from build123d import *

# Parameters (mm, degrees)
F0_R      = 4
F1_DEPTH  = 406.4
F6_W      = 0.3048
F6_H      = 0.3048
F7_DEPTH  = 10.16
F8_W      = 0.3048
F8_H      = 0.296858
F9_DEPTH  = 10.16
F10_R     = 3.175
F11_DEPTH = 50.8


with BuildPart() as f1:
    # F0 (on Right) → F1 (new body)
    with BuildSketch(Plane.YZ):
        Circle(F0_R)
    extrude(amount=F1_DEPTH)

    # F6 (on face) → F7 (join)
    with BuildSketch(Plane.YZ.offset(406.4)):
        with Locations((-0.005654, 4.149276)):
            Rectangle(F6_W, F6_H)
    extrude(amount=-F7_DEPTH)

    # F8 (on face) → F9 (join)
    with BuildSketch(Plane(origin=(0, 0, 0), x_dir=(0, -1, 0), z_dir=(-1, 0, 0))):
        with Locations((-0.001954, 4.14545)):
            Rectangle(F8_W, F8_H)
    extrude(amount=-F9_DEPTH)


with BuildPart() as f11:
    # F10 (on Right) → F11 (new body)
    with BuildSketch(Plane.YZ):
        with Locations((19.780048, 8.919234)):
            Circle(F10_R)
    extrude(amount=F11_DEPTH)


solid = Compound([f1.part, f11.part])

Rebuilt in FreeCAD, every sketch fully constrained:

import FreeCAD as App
import Part
import Sketcher

V = App.Vector
Q = App.Units.Quantity


def add_polygon(sketch, points):
    """Adds a closed chain of lines whose ends are joined by coincident constraints."""
    first, n = sketch.GeometryCount, len(points)
    for a, b in zip(points, points[1:] + points[:1]):
        sketch.addGeometry(Part.LineSegment(App.Vector(*a, 0), App.Vector(*b, 0)), False)
    for i in range(n):
        sketch.addConstraint(Sketcher.Constraint("Coincident", first + i, 2, first + (i + 1) % n, 1))

doc = App.newDocument("Part")
body = doc.addObject("PartDesign::Body", "Body")

sketch1 = body.newObject("Sketcher::SketchObject", "Sketch")
sketch1.AttachmentSupport = (doc.getObject("YZ_Plane"), [""])
sketch1.MapMode = "FlatFace"
sketch1.addGeometry(Part.Circle(V(0, 0, 0), V(0, 0, 1), 4), False)
sketch1.addConstraint([
    Sketcher.Constraint("Coincident", 0, 3, -1, 1),
    Sketcher.Constraint("Diameter", 0, 8.0),
])
pad1 = body.newObject("PartDesign::Pad", "Pad")
pad1.Profile = sketch1
pad1.Length = Q("16 in")

sketch2 = body.newObject("Sketcher::SketchObject", "Sketch001")
sketch2.AttachmentSupport = (doc.getObject("YZ_Plane"), [""])
sketch2.MapMode = "FlatFace"
sketch2.AttachmentOffset = App.Placement(V(0, 0, 16 * 25.4), App.Rotation())
add_polygon(sketch2, [(-0.158054, 4.301676), (-0.158054, 3.996876), (0.146746, 3.996876), (0.146746, 4.301676)])
sketch2.addConstraint([
    Sketcher.Constraint("Vertical", 0),
    Sketcher.Constraint("Horizontal", 1),
    Sketcher.Constraint("Vertical", 2),
    Sketcher.Constraint("Horizontal", 3),
    Sketcher.Constraint("Equal", 3, 0),
    Sketcher.Constraint("DistanceX", 1, 1, 1, 2, Q("0.012 in")),
    Sketcher.Constraint("DistanceX", 0, 2, -1, 1, 0.158054),
    Sketcher.Constraint("DistanceY", -1, 1, 0, 2, 3.996876),
])
pad2 = body.newObject("PartDesign::Pad", "Pad001")
pad2.Profile = sketch2
pad2.Length = Q("0.4 in")
pad2.Reversed = True

sketch3 = body.newObject("Sketcher::SketchObject", "Sketch002")
sketch3.AttachmentSupport = (doc.getObject("YZ_Plane"), [""])
sketch3.MapMode = "FlatFace"
add_polygon(sketch3, [(0.154354, 4.293879), (0.154354, 3.997021), (-0.150446, 3.997021), (-0.150446, 4.293879)])
sketch3.addConstraint([
    Sketcher.Constraint("Vertical", 0),
    Sketcher.Constraint("Horizontal", 1),
    Sketcher.Constraint("Vertical", 2),
    Sketcher.Constraint("Horizontal", 3),
    Sketcher.Constraint("DistanceX", 1, 2, 1, 1, Q("0.012 in")),
    Sketcher.Constraint("DistanceY", 0, 2, 0, 1, 0.296858),
    Sketcher.Constraint("DistanceY", -1, 1, 0, 2, 3.997021),
    Sketcher.Constraint("DistanceX", -1, 1, 0, 2, 0.154354),
])
pad3 = body.newObject("PartDesign::Pad", "Pad002")
pad3.Profile = sketch3
pad3.Length = Q("0.4 in")
body2 = doc.addObject("PartDesign::Body", "Body001")

sketch4 = body2.newObject("Sketcher::SketchObject", "Sketch003")
sketch4.AttachmentSupport = (doc.getObject("YZ_Plane001"), [""])
sketch4.MapMode = "FlatFace"
sketch4.addGeometry(Part.Circle(V(19.780048, 8.919234, 0), V(0, 0, 1), 3.175), False)
sketch4.addConstraint([
    Sketcher.Constraint("Diameter", 0, Q("0.25 in")),
    Sketcher.Constraint("DistanceX", -1, 1, 0, 3, 19.780048),
    Sketcher.Constraint("DistanceY", -1, 1, 0, 3, 8.919234),
])
pad4 = body2.newObject("PartDesign::Pad", "Pad003")
pad4.Profile = sketch4
pad4.Length = Q("2 in")

doc.recompute()
